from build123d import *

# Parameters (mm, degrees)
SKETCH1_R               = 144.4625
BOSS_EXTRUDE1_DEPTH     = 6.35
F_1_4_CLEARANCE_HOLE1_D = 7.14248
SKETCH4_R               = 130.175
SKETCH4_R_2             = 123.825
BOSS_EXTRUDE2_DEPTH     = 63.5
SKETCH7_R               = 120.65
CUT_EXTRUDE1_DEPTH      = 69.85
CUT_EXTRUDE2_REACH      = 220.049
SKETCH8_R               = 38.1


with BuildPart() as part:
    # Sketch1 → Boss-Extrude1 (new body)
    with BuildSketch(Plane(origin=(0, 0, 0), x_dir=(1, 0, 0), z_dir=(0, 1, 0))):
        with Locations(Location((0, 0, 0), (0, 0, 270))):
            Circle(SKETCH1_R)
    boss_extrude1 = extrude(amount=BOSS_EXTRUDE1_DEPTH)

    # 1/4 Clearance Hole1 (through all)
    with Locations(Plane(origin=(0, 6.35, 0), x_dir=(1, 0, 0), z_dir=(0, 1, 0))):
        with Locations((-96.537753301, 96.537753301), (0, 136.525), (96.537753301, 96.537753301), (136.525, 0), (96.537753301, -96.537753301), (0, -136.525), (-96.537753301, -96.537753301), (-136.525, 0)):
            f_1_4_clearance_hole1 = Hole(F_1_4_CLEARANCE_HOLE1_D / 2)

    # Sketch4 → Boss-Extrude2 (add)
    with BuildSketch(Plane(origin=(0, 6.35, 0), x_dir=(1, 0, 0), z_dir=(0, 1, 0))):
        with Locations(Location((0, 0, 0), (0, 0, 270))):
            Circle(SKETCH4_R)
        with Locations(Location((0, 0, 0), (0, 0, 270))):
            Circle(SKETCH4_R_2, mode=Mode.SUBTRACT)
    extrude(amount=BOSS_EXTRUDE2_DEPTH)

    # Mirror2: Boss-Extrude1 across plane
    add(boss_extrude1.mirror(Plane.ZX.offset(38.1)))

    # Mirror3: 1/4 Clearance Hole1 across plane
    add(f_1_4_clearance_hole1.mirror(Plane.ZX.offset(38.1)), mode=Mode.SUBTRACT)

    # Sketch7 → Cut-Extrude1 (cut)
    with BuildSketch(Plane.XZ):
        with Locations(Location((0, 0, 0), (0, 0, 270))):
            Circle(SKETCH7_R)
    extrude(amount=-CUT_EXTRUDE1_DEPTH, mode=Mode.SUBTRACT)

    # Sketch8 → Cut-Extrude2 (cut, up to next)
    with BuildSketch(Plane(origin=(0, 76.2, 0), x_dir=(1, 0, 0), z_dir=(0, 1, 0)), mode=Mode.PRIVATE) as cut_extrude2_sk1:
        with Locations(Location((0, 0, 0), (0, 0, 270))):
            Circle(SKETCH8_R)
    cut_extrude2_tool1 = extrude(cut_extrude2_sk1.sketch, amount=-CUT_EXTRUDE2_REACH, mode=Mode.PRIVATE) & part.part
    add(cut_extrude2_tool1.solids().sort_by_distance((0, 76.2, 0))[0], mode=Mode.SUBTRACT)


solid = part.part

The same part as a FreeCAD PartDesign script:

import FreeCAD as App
import Part
import Sketcher
from FreeCAD import Vector
Q = App.Units.Quantity

doc = App.newDocument("Part")
params = doc.addObject("Spreadsheet::Sheet", "Params")
for row, (alias, value) in enumerate([
    ("sketch1_diameter", "11.375 in"),
    ("pad1_length", "0.25 in"),
    ("hole_diameter", "0.2812 in"),
    ("sketch3_diameter", "10.25 in"),
    ("sketch3_diameter2", "9.75 in"),
    ("pad2_length", "2.5 in"),
    ("sketch4_diameter", "9.5 in"),
    ("pocket1_length", "2.75 in"),
    ("sketch5_diameter", "3 in"),
], start=1):
    params.set(f"A{row}", alias)
    params.set(f"B{row}", "=" + value)
    params.setAlias(f"B{row}", alias)

body = doc.addObject("PartDesign::Body", "Body")

sketch1 = body.newObject("Sketcher::SketchObject", "Sketch")
sketch1.AttachmentSupport = (doc.getObject("XZ_Plane"), [""])
sketch1.MapMode = "FlatFace"
sketch1.addGeometry(Part.Circle(Vector(0, 0, 0), Vector(0, 0, 1), 144), False)
sketch1.addConstraint(Sketcher.Constraint("Coincident", 0, 3, -1, 1))
sketch1.addConstraint(Sketcher.Constraint("Diameter", 0, Q("11.375 in")))
sketch1.setExpression("Constraints[1]", "Params.sketch1_diameter")
pad1 = body.newObject("PartDesign::Pad", "Pad")
pad1.Profile = sketch1
pad1.setExpression("Length", "Params.pad1_length")
pad1.Reversed = True

sketch2 = body.newObject("Sketcher::SketchObject", "Sketch001")
sketch2.AttachmentSupport = (doc.getObject("XZ_Plane"), [""])
sketch2.MapMode = "FlatFace"
sketch2.AttachmentOffset = App.Placement(Vector(0, 0, -0.25 * 25.4), App.Rotation())
sketch2.addGeometry(Part.Circle(Vector(-96.5, -96.5, 0), Vector(0, 0, 1), 3.6), False)
sketch2.addGeometry(Part.Circle(Vector(0, -136.5, 0), Vector(0, 0, 1), 3.6), False)
sketch2.addGeometry(Part.Circle(Vector(96.5, -96.5, 0), Vector(0, 0, 1), 3.6), False)
sketch2.addGeometry(Part.Circle(Vector(136.5, 0, 0), Vector(0, 0, 1), 3.6), False)
sketch2.addGeometry(Part.Circle(Vector(96.5, 96.5, 0), Vector(0, 0, 1), 3.6), False)
sketch2.addGeometry(Part.Circle(Vector(0, 136.5, 0), Vector(0, 0, 1), 3.6), False)
sketch2.addGeometry(Part.Circle(Vector(-96.5, 96.5, 0), Vector(0, 0, 1), 3.6), False)
sketch2.addGeometry(Part.Circle(Vector(-136.5, 0, 0), Vector(0, 0, 1), 3.6), False)
sketch2.addConstraint(Sketcher.Constraint("Equal", 0, 1))
sketch2.addConstraint(Sketcher.Constraint("Equal", 1, 2))
sketch2.addConstraint(Sketcher.Constraint("Equal", 2, 3))
sketch2.addConstraint(Sketcher.Constraint("Equal", 3, 4))
sketch2.addConstraint(Sketcher.Constraint("Equal", 4, 5))
sketch2.addConstraint(Sketcher.Constraint("Equal", 5, 6))
sketch2.addConstraint(Sketcher.Constraint("Equal", 6, 7))
sketch2.addConstraint(Sketcher.Constraint("Symmetric", 0, 3, 4, 3, -1, 1))
sketch2.addConstraint(Sketcher.Constraint("Symmetric", 1, 3, 5, 3, -1, 1))
sketch2.addConstraint(Sketcher.Constraint("Symmetric", 2, 3, 6, 3, -1, 1))
sketch2.addConstraint(Sketcher.Constraint("Symmetric", 3, 3, 7, 3, -1, 1))
sketch2.addConstraint(Sketcher.Constraint("Symmetric", 0, 3, 2, 3, -2))
sketch2.addConstraint(Sketcher.Constraint("PointOnObject", 1, 3, -2))
sketch2.addConstraint(Sketcher.Constraint("PointOnObject", 3, 3, -1))
sketch2.addConstraint(Sketcher.Constraint("Diameter", 0, Q("0.2812 in")))
sketch2.addConstraint(Sketcher.Constraint("DistanceY", 1, 3, 5, 3, Q("10.75 in")))
sketch2.addConstraint(Sketcher.Constraint("DistanceX", -1, 1, 3, 3, Q("5.375 in")))
sketch2.addConstraint(Sketcher.Constraint("DistanceX", 0, 3, -1, 1, Q("96.537753 mm")))
sketch2.addConstraint(Sketcher.Constraint("DistanceY", 0, 3, -1, 1, Q("96.537753 mm")))
doc.recompute()
hole = body.newObject("PartDesign::Hole", "Hole")
hole.Profile = sketch2
hole.ThreadType = "None"
hole.setExpression("Diameter", "Params.hole_diameter")
hole.DepthType = "ThroughAll"
hole.Reversed = True

sketch3 = body.newObject("Sketcher::SketchObject", "Sketch002")
sketch3.AttachmentSupport = (doc.getObject("XZ_Plane"), [""])
sketch3.MapMode = "FlatFace"
sketch3.AttachmentOffset = App.Placement(Vector(0, 0, -0.25 * 25.4), App.Rotation())
sketch3.addGeometry(Part.Circle(Vector(0, 0, 0), Vector(0, 0, 1), 130), False)
sketch3.addGeometry(Part.Circle(Vector(0, 0, 0), Vector(0, 0, 1), 124), False)
sketch3.addConstraint(Sketcher.Constraint("Coincident", 0, 3, -1, 1))
sketch3.addConstraint(Sketcher.Constraint("Coincident", 1, 3, -1, 1))
sketch3.addConstraint(Sketcher.Constraint("Diameter", 0, Q("10.25 in")))
sketch3.addConstraint(Sketcher.Constraint("Diameter", 1, Q("9.75 in")))
sketch3.setExpression("Constraints[2]", "Params.sketch3_diameter")
sketch3.setExpression("Constraints[3]", "Params.sketch3_diameter2")
pad2 = body.newObject("PartDesign::Pad", "Pad001")
pad2.Profile = sketch3
pad2.setExpression("Length", "Params.pad2_length")
pad2.Reversed = True
doc.recompute()

datumplane = body.newObject("PartDesign::Plane", "DatumPlane")
datumplane.AttachmentSupport = (doc.getObject("XZ_Plane"), [""])
datumplane.MapMode = "FlatFace"
datumplane.AttachmentOffset = App.Placement(Vector(0, 0, -1.5 * 25.4), App.Rotation())
mirrored = body.newObject("PartDesign::Mirrored", "Mirrored")
mirrored.Originals = [pad1]
mirrored.MirrorPlane = (datumplane, [""])
body.Tip = mirrored
doc.recompute()

datumplane2 = body.newObject("PartDesign::Plane", "DatumPlane001")
datumplane2.AttachmentSupport = (doc.getObject("XZ_Plane"), [""])
datumplane2.MapMode = "FlatFace"
datumplane2.AttachmentOffset = App.Placement(Vector(0, 0, -1.5 * 25.4), App.Rotation())
mirrored2 = body.newObject("PartDesign::Mirrored", "Mirrored001")
mirrored2.Originals = [hole]
mirrored2.MirrorPlane = (datumplane2, [""])
body.Tip = mirrored2

sketch4 = body.newObject("Sketcher::SketchObject", "Sketch003")
sketch4.AttachmentSupport = (doc.getObject("XZ_Plane"), [""])
sketch4.MapMode = "FlatFace"
sketch4.addGeometry(Part.Circle(Vector(0, 0, 0), Vector(0, 0, 1), 121), False)
sketch4.addConstraint(Sketcher.Constraint("Coincident", 0, 3, -1, 1))
sketch4.addConstraint(Sketcher.Constraint("Diameter", 0, Q("9.5 in")))
sketch4.setExpression("Constraints[1]", "Params.sketch4_diameter")
pocket1 = body.newObject("PartDesign::Pocket", "Pocket")
pocket1.Profile = sketch4
pocket1.setExpression("Length", "Params.pocket1_length")

sketch5 = body.newObject("Sketcher::SketchObject", "Sketch004")
sketch5.AttachmentSupport = (doc.getObject("XZ_Plane"), [""])
sketch5.MapMode = "FlatFace"
sketch5.AttachmentOffset = App.Placement(Vector(0, 0, -3 * 25.4), App.Rotation())
sketch5.addGeometry(Part.Circle(Vector(0, 0, 0), Vector(0, 0, 1), 38), False)
sketch5.addConstraint(Sketcher.Constraint("Coincident", 0, 3, -1, 1))
sketch5.addConstraint(Sketcher.Constraint("Diameter", 0, Q("3 in")))
sketch5.setExpression("Constraints[1]", "Params.sketch5_diameter")
pocket2 = body.newObject("PartDesign::Pocket", "Pocket001")
pocket2.Profile = sketch5
pocket2.Type = "UpToFirst"
pocket2.Reversed = True

doc.recompute()
